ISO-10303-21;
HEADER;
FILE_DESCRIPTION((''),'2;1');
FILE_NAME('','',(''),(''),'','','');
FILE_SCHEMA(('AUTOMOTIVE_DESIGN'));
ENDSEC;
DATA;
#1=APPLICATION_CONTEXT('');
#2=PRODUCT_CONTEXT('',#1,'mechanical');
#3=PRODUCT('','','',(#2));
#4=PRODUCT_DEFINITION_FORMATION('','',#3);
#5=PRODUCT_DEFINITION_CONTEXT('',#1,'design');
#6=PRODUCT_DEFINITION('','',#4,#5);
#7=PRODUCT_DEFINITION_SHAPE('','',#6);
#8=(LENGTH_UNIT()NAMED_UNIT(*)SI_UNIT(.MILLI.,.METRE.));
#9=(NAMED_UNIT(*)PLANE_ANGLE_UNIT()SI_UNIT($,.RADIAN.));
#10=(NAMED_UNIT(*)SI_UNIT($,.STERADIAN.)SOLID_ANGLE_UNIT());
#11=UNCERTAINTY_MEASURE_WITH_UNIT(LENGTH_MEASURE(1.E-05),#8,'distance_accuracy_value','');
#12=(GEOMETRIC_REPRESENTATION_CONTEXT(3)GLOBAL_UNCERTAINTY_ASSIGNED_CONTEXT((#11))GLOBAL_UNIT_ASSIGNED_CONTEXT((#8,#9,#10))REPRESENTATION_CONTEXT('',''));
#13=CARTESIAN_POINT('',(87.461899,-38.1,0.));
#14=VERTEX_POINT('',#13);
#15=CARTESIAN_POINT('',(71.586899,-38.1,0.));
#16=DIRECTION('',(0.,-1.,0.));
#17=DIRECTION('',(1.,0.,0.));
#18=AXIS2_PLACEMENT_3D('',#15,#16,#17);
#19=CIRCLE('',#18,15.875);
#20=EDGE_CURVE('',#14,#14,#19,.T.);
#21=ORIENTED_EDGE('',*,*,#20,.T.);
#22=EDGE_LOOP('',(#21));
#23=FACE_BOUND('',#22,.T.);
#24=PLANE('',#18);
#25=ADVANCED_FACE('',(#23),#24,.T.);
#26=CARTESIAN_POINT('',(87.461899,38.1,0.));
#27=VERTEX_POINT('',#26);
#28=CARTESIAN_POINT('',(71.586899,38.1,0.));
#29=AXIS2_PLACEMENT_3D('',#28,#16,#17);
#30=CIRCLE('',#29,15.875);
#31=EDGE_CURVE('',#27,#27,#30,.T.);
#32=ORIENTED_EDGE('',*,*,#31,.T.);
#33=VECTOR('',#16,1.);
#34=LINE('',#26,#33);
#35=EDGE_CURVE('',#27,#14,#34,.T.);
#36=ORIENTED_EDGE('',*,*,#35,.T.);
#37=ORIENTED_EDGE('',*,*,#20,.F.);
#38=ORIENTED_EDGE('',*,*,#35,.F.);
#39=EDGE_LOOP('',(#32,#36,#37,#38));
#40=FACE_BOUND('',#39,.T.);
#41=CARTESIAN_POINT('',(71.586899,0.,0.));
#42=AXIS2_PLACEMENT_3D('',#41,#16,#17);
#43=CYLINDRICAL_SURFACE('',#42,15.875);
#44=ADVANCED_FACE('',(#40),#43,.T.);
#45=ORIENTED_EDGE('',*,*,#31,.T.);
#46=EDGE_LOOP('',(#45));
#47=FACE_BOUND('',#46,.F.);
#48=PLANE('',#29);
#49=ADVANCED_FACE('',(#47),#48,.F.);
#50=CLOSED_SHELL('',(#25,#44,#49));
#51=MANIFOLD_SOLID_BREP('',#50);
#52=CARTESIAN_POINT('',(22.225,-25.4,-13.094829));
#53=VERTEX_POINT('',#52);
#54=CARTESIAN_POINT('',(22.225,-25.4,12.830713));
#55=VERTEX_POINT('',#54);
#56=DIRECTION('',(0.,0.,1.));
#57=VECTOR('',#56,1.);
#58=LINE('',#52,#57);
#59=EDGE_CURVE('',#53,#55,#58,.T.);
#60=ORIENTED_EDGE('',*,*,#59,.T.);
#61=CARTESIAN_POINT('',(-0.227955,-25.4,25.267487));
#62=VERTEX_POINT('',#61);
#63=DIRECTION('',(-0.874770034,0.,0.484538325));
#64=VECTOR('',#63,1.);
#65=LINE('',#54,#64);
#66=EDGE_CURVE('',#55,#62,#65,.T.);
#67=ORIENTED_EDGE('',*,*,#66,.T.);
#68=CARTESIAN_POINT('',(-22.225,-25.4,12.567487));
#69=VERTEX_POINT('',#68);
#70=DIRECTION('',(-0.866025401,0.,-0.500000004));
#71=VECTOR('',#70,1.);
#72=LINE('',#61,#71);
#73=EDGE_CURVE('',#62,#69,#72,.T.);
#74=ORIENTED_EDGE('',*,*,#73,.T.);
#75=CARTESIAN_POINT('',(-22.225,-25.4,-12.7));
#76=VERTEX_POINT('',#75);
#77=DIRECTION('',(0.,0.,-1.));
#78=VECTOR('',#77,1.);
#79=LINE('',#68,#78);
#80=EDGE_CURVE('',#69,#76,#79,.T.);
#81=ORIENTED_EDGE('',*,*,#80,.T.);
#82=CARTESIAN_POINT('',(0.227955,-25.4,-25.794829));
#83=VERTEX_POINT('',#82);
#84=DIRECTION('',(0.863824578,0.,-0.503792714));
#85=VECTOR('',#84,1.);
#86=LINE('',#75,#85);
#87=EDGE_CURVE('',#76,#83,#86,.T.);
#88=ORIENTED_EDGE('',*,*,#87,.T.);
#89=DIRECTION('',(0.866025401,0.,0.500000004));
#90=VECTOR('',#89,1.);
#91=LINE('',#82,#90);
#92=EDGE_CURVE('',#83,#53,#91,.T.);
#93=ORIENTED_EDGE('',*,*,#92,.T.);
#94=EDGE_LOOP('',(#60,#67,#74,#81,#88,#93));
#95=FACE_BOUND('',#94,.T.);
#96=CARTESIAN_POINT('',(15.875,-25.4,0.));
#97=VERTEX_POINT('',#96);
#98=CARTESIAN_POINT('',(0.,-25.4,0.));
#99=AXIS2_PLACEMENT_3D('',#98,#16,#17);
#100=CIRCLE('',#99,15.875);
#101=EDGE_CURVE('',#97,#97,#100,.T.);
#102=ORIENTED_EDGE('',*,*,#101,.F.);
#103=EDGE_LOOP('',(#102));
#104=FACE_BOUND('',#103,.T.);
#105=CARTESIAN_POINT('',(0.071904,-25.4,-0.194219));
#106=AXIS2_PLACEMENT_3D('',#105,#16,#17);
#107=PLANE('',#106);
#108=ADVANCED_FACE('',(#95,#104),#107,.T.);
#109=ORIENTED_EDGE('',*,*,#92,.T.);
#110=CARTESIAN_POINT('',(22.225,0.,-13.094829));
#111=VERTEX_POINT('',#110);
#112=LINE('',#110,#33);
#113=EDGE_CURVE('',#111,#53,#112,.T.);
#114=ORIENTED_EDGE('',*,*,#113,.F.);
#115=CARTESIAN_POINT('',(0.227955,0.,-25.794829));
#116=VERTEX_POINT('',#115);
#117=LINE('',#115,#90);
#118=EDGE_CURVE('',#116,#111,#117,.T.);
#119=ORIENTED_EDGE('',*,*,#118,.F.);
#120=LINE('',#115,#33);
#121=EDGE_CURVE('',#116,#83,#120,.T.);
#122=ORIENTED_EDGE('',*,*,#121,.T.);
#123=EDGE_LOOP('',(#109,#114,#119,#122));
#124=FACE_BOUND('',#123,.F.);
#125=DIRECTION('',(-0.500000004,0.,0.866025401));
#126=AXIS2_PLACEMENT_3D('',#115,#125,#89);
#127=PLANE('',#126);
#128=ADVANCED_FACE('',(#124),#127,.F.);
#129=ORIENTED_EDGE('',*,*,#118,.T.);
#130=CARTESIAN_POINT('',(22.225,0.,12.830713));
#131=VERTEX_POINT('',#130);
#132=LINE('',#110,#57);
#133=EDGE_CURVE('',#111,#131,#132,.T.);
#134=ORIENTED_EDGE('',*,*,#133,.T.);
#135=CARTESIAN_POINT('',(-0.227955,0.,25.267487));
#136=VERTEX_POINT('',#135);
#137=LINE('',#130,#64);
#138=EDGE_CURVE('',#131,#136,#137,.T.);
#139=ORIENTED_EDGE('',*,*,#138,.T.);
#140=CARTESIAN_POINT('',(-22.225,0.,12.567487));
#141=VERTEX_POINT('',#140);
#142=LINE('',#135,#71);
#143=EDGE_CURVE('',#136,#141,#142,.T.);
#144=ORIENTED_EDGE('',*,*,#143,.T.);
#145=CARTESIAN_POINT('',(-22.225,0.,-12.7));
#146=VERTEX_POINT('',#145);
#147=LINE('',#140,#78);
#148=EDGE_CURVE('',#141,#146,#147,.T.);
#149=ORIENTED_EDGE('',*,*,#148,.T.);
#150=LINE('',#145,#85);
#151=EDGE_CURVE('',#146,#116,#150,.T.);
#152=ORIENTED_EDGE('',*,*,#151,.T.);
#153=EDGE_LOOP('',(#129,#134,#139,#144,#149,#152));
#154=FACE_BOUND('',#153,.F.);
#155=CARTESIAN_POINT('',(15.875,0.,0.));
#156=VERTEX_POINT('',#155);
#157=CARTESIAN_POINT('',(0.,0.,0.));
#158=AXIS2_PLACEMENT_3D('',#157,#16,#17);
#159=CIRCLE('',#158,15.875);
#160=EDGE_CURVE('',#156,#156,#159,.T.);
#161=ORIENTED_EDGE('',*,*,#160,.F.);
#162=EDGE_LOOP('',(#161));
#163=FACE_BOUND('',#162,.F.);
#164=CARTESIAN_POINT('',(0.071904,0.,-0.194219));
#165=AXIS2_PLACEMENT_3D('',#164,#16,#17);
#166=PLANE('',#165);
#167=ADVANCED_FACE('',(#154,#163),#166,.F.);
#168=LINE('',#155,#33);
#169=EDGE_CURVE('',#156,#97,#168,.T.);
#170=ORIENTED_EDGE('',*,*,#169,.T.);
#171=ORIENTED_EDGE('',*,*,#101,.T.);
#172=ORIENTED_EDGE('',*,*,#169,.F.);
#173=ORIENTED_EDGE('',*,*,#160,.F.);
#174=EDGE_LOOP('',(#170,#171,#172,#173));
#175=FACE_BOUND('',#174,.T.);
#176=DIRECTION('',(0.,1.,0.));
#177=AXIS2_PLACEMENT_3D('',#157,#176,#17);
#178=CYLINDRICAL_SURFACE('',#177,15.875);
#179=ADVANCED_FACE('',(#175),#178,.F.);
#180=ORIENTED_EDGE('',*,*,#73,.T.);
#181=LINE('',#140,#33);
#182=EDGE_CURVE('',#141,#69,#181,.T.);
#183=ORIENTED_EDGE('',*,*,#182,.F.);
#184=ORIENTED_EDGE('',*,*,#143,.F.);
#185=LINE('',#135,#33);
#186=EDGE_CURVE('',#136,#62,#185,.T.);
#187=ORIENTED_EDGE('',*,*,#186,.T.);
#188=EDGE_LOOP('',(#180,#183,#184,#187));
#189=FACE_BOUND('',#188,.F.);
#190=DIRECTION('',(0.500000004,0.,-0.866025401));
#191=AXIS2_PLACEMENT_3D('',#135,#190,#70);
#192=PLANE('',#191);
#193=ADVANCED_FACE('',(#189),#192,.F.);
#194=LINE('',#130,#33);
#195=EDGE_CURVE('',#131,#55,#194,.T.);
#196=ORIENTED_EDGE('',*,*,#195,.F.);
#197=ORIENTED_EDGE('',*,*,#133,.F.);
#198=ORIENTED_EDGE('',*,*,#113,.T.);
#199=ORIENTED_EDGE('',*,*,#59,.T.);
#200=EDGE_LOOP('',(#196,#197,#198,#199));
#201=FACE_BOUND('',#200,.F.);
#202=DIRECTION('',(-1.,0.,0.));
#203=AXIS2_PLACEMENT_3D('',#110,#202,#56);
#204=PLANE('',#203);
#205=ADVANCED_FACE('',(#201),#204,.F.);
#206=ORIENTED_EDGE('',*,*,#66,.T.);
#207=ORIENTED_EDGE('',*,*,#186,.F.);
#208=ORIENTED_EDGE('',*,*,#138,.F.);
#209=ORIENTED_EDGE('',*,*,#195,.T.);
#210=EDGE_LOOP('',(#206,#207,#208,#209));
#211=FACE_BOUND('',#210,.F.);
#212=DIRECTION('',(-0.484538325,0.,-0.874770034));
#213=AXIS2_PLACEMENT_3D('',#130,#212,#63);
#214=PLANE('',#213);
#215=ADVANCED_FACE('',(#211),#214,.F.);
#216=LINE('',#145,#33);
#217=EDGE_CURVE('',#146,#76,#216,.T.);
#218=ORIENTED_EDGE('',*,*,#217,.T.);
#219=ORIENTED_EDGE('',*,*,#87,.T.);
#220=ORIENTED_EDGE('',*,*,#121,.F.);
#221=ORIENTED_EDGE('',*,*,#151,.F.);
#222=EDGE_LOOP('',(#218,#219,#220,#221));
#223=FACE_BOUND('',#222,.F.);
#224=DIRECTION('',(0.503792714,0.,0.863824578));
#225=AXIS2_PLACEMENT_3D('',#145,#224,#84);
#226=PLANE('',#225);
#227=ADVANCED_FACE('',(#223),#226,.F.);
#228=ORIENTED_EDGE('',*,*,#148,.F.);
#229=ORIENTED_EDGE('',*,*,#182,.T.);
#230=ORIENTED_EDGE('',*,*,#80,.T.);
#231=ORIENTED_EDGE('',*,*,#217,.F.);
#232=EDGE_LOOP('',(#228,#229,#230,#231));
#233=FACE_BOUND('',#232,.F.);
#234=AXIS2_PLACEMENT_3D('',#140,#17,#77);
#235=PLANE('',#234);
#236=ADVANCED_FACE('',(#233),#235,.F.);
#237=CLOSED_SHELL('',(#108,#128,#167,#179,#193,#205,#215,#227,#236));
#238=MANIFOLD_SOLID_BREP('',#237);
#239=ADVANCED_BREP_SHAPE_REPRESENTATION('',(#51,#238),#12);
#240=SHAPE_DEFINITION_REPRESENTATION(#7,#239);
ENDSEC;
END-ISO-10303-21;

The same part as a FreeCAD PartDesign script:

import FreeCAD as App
import Part
import Sketcher
from FreeCAD import Vector
Q = App.Units.Quantity

doc = App.newDocument("Part")
body = doc.addObject("PartDesign::Body", "Body")

# Sketch on XZ plane
sketch1 = body.newObject("Sketcher::SketchObject", "Sketch")
sketch1.AttachmentSupport = (doc.getObject("XZ_Plane"), [""])
sketch1.MapMode = "FlatFace"
sketch1.addGeometry([
    Part.LineSegment(Vector(0, 25, 0), Vector(-22, 13, 0)),  # 0
    Part.LineSegment(Vector(-22, 13, 0), Vector(-22, -13, 0)),  # 1
    Part.LineSegment(Vector(-22, -13, 0), Vector(0, -26, 0)),  # 2
    Part.LineSegment(Vector(0, -26, 0), Vector(22, -13, 0)),  # 3
    Part.LineSegment(Vector(22, -13, 0), Vector(22, 13, 0)),  # 4
    Part.LineSegment(Vector(22, 13, 0), Vector(0, 25, 0)),  # 5
    Part.Circle(Vector(0, 0, 0), Vector(0, 0, 1), 16),  # 6
], False)
sketch1.addConstraint([
    Sketcher.Constraint("Coincident", 0, 2, 1, 1),
    Sketcher.Constraint("Coincident", 1, 2, 2, 1),
    Sketcher.Constraint("Coincident", 2, 2, 3, 1),
    Sketcher.Constraint("Coincident", 3, 2, 4, 1),
    Sketcher.Constraint("Coincident", 4, 2, 5, 1),
    Sketcher.Constraint("Coincident", 5, 2, 0, 1),
    Sketcher.Constraint("Vertical", 1),
    Sketcher.Constraint("Vertical", 4),
    Sketcher.Constraint("Coincident", 6, 3, -1, 1),
    Sketcher.Constraint("Parallel", 0, 3),
    Sketcher.Constraint("Equal", 0, 3),
    Sketcher.Constraint("Diameter", 6, Q("1.25 in")),
    Sketcher.Constraint("Distance", 0, Q("1 in")),
    Sketcher.Constraint("Angle", 0, Q("-150 deg")),
    Sketcher.Constraint("DistanceY", 1, 2, -1, 1, Q("0.5 in")),
    Sketcher.Constraint("DistanceX", 1, 2, 3, 2, Q("1.75 in")),
    Sketcher.Constraint("DistanceX", 0, 2, -1, 1, Q("0.875 in")),
    Sketcher.Constraint("DistanceY", 4, 1, 4, 2, 25.925542),
    Sketcher.Constraint("DistanceY", 1, 2, 1, 1, 25.267487),
    Sketcher.Constraint("DistanceY", 2, 2, -1, 1, 25.794829),
])
pad1 = body.newObject("PartDesign::Pad", "Pad")
pad1.Profile = sketch1
pad1.Length = Q("1 in")
body2 = doc.addObject("PartDesign::Body", "Body001")

# Sketch on XZ plane
sketch2 = body2.newObject("Sketcher::SketchObject", "Sketch001")
sketch2.AttachmentSupport = (doc.getObject("XZ_Plane001"), [""])
sketch2.MapMode = "FlatFace"
sketch2.addGeometry(Part.Circle(Vector(72, 0, 0), Vector(0, 0, 1), 16), False)
sketch2.addConstraint([
    Sketcher.Constraint("PointOnObject", 0, 3, -1),
    Sketcher.Constraint("Diameter", 0, Q("1.25 in")),
    Sketcher.Constraint("DistanceX", -1, 1, 0, 3, 71.586899),
])
pad2 = body2.newObject("PartDesign::Pad", "Pad001")
pad2.Profile = sketch2
pad2.Length = Q("3 in")
pad2.Midplane = True

doc.recompute()
